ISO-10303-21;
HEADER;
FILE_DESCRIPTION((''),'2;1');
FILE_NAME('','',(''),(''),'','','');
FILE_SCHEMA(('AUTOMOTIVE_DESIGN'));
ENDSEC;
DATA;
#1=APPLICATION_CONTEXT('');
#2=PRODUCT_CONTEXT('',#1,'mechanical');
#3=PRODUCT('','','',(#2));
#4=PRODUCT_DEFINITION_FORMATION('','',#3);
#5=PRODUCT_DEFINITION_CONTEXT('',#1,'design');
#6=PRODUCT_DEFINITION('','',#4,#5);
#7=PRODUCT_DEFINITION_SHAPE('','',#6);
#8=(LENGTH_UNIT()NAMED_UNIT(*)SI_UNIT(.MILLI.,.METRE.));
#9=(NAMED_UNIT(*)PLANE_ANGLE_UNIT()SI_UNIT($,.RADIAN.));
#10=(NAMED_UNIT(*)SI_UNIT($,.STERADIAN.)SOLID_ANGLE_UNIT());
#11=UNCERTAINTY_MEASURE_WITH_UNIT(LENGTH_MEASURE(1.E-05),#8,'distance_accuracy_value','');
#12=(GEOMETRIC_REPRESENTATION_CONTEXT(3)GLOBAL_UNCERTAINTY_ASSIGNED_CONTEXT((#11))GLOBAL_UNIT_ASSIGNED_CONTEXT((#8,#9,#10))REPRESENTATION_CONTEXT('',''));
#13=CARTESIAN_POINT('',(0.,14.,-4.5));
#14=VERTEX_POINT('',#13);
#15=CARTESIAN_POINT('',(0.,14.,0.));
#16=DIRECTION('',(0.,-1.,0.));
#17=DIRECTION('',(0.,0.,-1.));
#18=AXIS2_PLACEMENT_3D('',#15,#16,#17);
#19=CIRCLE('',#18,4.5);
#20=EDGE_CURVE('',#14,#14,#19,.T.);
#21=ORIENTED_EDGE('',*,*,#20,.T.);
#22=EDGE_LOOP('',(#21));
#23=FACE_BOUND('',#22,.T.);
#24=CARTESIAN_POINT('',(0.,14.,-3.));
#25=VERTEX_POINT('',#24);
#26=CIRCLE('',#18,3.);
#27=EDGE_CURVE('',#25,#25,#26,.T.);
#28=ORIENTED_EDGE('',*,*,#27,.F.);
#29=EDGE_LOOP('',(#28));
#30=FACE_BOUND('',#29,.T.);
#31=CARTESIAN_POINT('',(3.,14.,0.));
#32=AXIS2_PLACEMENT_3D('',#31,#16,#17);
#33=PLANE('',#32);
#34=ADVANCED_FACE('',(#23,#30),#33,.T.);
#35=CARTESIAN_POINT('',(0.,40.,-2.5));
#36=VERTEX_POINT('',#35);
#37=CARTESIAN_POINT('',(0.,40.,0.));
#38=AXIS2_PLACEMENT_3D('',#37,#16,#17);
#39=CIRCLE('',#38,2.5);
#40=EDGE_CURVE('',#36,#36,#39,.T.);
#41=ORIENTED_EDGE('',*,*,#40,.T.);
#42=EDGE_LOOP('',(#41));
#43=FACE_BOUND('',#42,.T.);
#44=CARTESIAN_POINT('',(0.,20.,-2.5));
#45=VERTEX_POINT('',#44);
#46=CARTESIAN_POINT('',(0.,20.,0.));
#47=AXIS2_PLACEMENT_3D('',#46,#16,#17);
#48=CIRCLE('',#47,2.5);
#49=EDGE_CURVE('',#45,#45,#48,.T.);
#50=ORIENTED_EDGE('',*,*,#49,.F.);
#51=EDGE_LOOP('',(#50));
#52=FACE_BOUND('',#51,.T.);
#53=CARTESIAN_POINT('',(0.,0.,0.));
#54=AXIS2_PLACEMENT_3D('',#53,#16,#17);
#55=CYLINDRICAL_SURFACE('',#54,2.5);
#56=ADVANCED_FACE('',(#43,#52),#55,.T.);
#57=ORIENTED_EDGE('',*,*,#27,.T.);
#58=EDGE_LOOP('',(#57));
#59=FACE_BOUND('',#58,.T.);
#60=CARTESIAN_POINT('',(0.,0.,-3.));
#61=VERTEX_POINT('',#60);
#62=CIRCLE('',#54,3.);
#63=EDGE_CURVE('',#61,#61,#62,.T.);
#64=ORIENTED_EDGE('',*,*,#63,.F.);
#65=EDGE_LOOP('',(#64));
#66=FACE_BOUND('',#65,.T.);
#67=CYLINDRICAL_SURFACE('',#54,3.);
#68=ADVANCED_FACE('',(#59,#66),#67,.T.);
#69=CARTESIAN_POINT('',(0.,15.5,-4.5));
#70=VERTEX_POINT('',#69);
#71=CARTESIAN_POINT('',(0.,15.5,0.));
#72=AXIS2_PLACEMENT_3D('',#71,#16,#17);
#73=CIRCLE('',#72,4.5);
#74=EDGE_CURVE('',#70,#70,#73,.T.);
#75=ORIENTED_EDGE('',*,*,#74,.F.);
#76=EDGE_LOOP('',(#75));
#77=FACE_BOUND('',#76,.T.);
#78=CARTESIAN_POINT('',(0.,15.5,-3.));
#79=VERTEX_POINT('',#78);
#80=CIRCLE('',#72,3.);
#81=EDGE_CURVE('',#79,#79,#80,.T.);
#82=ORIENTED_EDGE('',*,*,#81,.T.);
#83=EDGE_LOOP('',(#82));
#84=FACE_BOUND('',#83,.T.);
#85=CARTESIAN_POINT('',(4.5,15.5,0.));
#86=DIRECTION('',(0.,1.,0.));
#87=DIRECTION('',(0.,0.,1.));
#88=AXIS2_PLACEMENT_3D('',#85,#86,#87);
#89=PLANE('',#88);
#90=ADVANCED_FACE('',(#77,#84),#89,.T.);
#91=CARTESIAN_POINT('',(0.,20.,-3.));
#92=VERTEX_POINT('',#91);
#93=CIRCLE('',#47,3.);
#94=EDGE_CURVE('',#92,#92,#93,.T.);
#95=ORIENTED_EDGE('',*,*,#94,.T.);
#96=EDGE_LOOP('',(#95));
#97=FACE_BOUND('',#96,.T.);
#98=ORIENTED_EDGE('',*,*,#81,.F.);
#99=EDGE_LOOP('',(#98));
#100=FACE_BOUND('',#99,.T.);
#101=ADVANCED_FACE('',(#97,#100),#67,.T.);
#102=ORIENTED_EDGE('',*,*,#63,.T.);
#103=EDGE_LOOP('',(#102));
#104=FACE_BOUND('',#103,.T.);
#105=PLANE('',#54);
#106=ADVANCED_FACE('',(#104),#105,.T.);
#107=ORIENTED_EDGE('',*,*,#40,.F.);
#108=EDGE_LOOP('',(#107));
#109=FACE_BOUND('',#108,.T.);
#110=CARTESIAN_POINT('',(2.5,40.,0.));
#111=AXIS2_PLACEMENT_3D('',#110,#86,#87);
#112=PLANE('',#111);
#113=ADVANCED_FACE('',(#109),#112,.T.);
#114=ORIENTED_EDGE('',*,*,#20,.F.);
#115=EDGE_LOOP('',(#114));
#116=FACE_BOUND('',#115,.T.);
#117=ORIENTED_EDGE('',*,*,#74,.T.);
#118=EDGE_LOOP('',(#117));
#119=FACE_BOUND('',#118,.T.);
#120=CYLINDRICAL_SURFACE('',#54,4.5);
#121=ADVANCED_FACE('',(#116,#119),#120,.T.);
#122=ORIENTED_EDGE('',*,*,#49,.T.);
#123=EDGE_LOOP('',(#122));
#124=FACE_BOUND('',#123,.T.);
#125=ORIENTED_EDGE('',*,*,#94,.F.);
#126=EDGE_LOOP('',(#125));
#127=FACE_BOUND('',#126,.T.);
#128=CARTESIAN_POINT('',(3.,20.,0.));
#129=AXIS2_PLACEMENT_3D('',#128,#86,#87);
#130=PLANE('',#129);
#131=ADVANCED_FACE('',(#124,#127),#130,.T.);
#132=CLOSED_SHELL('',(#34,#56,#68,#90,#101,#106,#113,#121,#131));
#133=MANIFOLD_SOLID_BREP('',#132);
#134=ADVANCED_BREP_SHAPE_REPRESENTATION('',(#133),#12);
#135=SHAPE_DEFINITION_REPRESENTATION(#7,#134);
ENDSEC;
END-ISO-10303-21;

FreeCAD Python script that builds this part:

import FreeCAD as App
import Part
import Sketcher

V = App.Vector
Q = App.Units.Quantity

doc = App.newDocument("Part")
body = doc.addObject("PartDesign::Body", "Body")

sketch1 = doc.addObject("Sketcher::SketchObject", "Sketch")
body.addObject(sketch1)
sketch1.AttachmentSupport = (doc.XY_Plane, [""])
sketch1.MapMode = "FlatFace"
sketch1.addGeometry([
    Part.LineSegment(V(0, 0, 0), V(3, 0, 0)),
    Part.LineSegment(V(3, 0, 0), V(3, 14, 0)),
    Part.LineSegment(V(3, 14, 0), V(4.5, 14, 0)),
    Part.LineSegment(V(4.5, 14, 0), V(4.5, 15.5, 0)),
    Part.LineSegment(V(4.5, 15.5, 0), V(3, 15.5, 0)),
    Part.LineSegment(V(3, 15.5, 0), V(3, 20, 0)),
    Part.LineSegment(V(3, 20, 0), V(2.5, 20, 0)),
    Part.LineSegment(V(2.5, 20, 0), V(2.5, 40, 0)),
    Part.LineSegment(V(2.5, 40, 0), V(0, 40, 0)),
    Part.LineSegment(V(0, 40, 0), V(0, 0, 0)),
], False)
sketch1.addConstraint([
    Sketcher.Constraint("Coincident", 0, 2, 1, 1),
    Sketcher.Constraint("Coincident", 1, 2, 2, 1),
    Sketcher.Constraint("Coincident", 2, 2, 3, 1),
    Sketcher.Constraint("Coincident", 3, 2, 4, 1),
    Sketcher.Constraint("Coincident", 4, 2, 5, 1),
    Sketcher.Constraint("Coincident", 5, 2, 6, 1),
    Sketcher.Constraint("Coincident", 6, 2, 7, 1),
    Sketcher.Constraint("Coincident", 7, 2, 8, 1),
    Sketcher.Constraint("Coincident", 8, 2, 9, 1),
    Sketcher.Constraint("Coincident", 9, 2, 0, 1),
    Sketcher.Constraint("Horizontal", 0),
    Sketcher.Constraint("Vertical", 1),
    Sketcher.Constraint("Horizontal", 2),
    Sketcher.Constraint("Vertical", 3),
    Sketcher.Constraint("Horizontal", 4),
    Sketcher.Constraint("Vertical", 5),
    Sketcher.Constraint("Horizontal", 6),
    Sketcher.Constraint("Vertical", 7),
    Sketcher.Constraint("Horizontal", 8),
    Sketcher.Constraint("Vertical", 9),
    Sketcher.Constraint("Coincident", 9, 2, -1, 1),
    Sketcher.Constraint("Vertical", 1, 2, 4, 2),
    Sketcher.Constraint("Equal", 4, 3),
    Sketcher.Constraint("DistanceX", 0, 1, 0, 2, Q("3 mm")),
    Sketcher.Constraint("DistanceY", 1, 1, 1, 2, Q("14 mm")),
    Sketcher.Constraint("DistanceY", 7, 1, 7, 2, Q("20 mm")),
    Sketcher.Constraint("DistanceY", 9, 2, 9, 1, Q("40 mm")),
    Sketcher.Constraint("DistanceX", 2, 1, 2, 2, Q("1.5 mm")),
    Sketcher.Constraint("DistanceX", 6, 2, 6, 1, Q("0.5 mm")),
])
revolution = doc.addObject("PartDesign::Revolution", "Revolution")
body.addObject(revolution)
revolution.Profile = sketch1
revolution.ReferenceAxis = (sketch1, ["V_Axis"])
revolution.Angle = 360

doc.recompute()
